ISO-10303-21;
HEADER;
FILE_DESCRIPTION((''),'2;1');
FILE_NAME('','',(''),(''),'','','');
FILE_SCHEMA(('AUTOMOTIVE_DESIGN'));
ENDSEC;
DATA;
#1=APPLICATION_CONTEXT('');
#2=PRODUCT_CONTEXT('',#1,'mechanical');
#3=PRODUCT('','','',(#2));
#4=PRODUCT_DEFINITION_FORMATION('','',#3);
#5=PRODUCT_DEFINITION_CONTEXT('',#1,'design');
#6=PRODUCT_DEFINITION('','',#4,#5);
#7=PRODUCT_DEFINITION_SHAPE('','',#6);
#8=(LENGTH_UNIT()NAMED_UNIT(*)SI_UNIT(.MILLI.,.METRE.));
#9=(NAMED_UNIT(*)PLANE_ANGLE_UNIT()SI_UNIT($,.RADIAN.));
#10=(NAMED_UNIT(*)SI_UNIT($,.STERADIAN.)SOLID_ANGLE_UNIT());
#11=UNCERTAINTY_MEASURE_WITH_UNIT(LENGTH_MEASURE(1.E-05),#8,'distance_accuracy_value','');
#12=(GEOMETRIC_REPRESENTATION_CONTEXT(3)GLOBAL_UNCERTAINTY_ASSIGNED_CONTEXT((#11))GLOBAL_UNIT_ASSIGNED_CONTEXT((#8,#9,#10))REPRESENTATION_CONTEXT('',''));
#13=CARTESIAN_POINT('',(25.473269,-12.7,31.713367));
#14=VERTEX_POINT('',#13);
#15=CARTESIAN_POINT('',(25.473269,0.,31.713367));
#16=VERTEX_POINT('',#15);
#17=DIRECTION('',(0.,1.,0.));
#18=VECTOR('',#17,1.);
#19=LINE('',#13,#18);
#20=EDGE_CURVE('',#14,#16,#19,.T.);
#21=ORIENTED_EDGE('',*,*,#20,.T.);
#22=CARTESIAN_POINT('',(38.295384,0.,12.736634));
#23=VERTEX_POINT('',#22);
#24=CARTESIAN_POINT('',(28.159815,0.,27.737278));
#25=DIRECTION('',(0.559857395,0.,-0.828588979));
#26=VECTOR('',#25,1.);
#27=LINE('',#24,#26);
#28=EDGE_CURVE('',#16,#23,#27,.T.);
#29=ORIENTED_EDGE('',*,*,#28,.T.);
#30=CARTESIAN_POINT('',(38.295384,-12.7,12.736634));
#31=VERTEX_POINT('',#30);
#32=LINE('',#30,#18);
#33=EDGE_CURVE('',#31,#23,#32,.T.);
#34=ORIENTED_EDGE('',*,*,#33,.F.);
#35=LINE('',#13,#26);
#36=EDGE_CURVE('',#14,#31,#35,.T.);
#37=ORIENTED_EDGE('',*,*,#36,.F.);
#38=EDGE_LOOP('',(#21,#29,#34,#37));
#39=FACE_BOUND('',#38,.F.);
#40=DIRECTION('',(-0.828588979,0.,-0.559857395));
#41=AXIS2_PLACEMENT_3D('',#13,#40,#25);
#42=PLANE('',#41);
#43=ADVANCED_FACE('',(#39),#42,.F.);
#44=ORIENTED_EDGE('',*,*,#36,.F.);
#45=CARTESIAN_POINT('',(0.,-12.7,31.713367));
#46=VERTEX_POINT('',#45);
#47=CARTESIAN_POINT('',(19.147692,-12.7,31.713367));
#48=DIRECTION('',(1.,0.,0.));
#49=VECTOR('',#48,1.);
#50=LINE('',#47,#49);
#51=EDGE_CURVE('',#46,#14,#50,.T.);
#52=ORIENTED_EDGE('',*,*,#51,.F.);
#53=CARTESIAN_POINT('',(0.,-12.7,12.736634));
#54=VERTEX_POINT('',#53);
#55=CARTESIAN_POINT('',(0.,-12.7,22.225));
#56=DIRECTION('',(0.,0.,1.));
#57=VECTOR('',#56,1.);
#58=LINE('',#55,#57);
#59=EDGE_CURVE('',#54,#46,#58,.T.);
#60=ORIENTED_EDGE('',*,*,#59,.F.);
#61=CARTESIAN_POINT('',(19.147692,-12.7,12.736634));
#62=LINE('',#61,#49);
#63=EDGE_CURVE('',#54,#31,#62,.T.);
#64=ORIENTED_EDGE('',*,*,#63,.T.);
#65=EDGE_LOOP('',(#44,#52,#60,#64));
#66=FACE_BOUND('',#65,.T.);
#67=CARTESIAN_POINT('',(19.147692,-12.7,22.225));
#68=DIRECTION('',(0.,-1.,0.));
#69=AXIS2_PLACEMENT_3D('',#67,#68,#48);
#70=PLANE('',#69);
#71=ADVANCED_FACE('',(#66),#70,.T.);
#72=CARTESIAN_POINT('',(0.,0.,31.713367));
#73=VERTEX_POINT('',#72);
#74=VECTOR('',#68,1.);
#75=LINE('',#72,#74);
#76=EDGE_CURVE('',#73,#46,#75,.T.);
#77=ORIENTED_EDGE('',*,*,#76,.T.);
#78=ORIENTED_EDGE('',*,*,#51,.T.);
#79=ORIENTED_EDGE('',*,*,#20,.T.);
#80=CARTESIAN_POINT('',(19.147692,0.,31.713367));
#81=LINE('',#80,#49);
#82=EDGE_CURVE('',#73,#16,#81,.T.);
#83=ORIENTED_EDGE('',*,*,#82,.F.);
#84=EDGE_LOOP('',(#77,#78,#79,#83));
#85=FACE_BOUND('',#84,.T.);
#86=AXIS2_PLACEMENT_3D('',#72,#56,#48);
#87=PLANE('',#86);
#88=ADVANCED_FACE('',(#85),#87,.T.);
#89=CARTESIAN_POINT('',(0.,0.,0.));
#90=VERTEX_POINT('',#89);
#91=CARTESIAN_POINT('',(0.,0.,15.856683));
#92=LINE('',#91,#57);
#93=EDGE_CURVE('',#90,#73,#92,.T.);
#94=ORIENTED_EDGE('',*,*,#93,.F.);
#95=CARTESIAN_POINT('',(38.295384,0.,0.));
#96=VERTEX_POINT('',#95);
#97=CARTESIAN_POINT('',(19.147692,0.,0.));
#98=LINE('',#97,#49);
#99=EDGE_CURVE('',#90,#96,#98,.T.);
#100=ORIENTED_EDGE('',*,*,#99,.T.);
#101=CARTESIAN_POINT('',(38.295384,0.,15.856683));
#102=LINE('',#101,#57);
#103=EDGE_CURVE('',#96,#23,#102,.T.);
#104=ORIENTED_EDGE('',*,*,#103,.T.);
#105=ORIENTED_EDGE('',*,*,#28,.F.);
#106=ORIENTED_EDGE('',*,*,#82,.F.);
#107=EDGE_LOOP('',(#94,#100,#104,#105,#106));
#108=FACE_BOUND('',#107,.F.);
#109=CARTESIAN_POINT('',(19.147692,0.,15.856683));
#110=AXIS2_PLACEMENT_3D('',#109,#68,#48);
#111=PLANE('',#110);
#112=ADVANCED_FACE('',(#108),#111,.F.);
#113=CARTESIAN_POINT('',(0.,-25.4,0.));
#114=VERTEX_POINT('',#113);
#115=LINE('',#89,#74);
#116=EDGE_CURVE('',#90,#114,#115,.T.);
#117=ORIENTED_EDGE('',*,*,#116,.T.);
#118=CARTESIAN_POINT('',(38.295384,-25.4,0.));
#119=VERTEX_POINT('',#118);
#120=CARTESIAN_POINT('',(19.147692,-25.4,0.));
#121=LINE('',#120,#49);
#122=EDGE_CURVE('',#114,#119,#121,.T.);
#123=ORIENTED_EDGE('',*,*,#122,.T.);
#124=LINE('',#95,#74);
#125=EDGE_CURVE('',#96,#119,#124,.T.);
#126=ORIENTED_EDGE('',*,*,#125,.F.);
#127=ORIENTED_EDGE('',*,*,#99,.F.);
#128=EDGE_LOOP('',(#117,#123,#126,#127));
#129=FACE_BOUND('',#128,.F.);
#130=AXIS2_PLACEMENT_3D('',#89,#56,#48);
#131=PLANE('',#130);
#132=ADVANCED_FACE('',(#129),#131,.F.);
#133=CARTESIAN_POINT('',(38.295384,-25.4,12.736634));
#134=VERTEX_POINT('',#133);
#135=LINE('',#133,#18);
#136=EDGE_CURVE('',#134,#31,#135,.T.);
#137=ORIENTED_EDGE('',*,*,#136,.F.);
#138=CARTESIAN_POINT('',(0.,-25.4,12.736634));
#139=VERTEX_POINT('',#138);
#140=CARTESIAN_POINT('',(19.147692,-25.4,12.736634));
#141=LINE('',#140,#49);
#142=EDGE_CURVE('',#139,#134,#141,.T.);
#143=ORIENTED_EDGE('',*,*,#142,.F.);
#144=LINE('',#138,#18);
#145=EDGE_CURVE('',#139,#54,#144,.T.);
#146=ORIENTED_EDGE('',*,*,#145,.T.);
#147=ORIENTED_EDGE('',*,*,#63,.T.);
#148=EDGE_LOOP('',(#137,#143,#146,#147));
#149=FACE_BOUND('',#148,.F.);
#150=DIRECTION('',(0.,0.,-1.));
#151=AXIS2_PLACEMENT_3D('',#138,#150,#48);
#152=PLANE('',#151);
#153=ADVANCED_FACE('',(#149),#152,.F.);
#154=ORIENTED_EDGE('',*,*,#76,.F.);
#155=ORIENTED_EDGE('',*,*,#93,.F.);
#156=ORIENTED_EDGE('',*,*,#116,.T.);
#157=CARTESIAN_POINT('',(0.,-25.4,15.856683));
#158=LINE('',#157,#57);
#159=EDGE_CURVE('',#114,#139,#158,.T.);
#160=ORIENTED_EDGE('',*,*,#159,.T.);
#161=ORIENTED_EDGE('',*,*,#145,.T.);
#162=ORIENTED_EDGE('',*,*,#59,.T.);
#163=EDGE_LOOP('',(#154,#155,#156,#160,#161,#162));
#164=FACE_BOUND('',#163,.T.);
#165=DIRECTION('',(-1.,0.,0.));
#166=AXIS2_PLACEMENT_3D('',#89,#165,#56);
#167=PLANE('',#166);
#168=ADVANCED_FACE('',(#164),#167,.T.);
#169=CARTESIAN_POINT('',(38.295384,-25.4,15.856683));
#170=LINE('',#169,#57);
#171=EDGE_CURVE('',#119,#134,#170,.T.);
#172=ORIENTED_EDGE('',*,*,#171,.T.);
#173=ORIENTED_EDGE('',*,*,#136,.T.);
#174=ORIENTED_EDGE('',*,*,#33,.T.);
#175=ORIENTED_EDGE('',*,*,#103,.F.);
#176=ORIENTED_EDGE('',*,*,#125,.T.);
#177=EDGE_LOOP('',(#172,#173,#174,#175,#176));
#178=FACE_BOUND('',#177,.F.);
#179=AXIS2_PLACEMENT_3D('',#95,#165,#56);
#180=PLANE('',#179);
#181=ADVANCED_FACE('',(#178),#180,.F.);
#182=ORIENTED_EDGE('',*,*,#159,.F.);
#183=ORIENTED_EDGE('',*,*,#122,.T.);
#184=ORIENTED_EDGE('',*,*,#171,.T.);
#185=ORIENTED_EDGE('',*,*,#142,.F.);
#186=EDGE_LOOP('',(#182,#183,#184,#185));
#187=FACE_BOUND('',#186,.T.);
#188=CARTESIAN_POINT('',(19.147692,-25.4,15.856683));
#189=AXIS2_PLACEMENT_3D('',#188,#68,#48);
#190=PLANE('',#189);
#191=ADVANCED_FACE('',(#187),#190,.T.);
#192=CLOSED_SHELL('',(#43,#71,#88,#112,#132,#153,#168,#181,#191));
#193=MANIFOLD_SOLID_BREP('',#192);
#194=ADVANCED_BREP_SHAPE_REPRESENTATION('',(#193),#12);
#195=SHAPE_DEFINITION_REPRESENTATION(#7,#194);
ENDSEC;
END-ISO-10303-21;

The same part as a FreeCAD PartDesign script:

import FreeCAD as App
import Part
import Sketcher

V = App.Vector
Q = App.Units.Quantity


def add_polygon(sketch, points):
    """Adds a closed chain of lines whose ends are joined by coincident constraints."""
    first, n = sketch.GeometryCount, len(points)
    for a, b in zip(points, points[1:] + points[:1]):
        sketch.addGeometry(Part.LineSegment(App.Vector(*a, 0), App.Vector(*b, 0)), False)
    for i in range(n):
        sketch.addConstraint(Sketcher.Constraint("Coincident", first + i, 2, first + (i + 1) % n, 1))

doc = App.newDocument("Part")
body = doc.addObject("PartDesign::Body", "Body")

sketch1 = body.newObject("Sketcher::SketchObject", "Sketch")
sketch1.AttachmentSupport = (doc.getObject("XZ_Plane"), [""])
sketch1.MapMode = "FlatFace"
add_polygon(sketch1, [(0, 32), (0, 0), (38, 0), (38, 32)])
sketch1.addConstraint([
    Sketcher.Constraint("Vertical", 0),
    Sketcher.Constraint("Horizontal", 1),
    Sketcher.Constraint("Vertical", 2),
    Sketcher.Constraint("Horizontal", 3),
    Sketcher.Constraint("Coincident", 0, 2, -1, 1),
    Sketcher.Constraint("DistanceX", 1, 1, 1, 2, Q("38.295384 mm")),
    Sketcher.Constraint("DistanceY", 0, 2, 0, 1, Q("31.713367 mm")),
])
pad1 = body.newObject("PartDesign::Pad", "Pad")
pad1.Profile = sketch1
pad1.Length = Q("1 in")

sketch2 = body.newObject("Sketcher::SketchObject", "Sketch001")
sketch2.AttachmentSupport = (doc.getObject("XZ_Plane"), [""])
sketch2.MapMode = "FlatFace"
sketch2.AttachmentOffset = App.Placement(V(0, 0, 1 * 25.4), App.Rotation())
add_polygon(sketch2, [(0, 32), (0, 13), (38, 13), (38, 32)])
sketch2.addConstraint([
    Sketcher.Constraint("Vertical", 0),
    Sketcher.Constraint("Horizontal", 1),
    Sketcher.Constraint("Vertical", 2),
    Sketcher.Constraint("Horizontal", 3),
    Sketcher.Constraint("PointOnObject", 0, 2, -2),
    Sketcher.Constraint("DistanceX", 1, 1, 1, 2, Q("38.295384 mm")),
    Sketcher.Constraint("DistanceY", 0, 2, 0, 1, Q("18.976732 mm")),
    Sketcher.Constraint("DistanceY", -1, 1, 0, 2, Q("12.736634 mm")),
])
pocket1 = body.newObject("PartDesign::Pocket", "Pocket")
pocket1.Profile = sketch2
pocket1.Length = Q("0.5 in")

sketch3 = body.newObject("Sketcher::SketchObject", "Sketch002")
sketch3.AttachmentSupport = (doc.getObject("XZ_Plane"), [""])
sketch3.MapMode = "FlatFace"
sketch3.AttachmentOffset = App.Placement(V(0, 0, 0.5 * 25.4), App.Rotation())
add_polygon(sketch3, [(38, 32), (25, 32), (38, 13)])
sketch3.addConstraint([
    Sketcher.Constraint("Horizontal", 0),
    Sketcher.Constraint("Vertical", 2),
    Sketcher.Constraint("DistanceX", 0, 2, 0, 1, Q("12.822116 mm")),
    Sketcher.Constraint("DistanceY", 2, 1, 2, 2, Q("18.976732 mm")),
    Sketcher.Constraint("DistanceX", -1, 1, 0, 2, Q("25.473269 mm")),
    Sketcher.Constraint("DistanceY", -1, 1, 0, 2, Q("31.713367 mm")),
])
pocket2 = body.newObject("PartDesign::Pocket", "Pocket001")
pocket2.Profile = sketch3
pocket2.Type = "ThroughAll"

doc.recompute()
